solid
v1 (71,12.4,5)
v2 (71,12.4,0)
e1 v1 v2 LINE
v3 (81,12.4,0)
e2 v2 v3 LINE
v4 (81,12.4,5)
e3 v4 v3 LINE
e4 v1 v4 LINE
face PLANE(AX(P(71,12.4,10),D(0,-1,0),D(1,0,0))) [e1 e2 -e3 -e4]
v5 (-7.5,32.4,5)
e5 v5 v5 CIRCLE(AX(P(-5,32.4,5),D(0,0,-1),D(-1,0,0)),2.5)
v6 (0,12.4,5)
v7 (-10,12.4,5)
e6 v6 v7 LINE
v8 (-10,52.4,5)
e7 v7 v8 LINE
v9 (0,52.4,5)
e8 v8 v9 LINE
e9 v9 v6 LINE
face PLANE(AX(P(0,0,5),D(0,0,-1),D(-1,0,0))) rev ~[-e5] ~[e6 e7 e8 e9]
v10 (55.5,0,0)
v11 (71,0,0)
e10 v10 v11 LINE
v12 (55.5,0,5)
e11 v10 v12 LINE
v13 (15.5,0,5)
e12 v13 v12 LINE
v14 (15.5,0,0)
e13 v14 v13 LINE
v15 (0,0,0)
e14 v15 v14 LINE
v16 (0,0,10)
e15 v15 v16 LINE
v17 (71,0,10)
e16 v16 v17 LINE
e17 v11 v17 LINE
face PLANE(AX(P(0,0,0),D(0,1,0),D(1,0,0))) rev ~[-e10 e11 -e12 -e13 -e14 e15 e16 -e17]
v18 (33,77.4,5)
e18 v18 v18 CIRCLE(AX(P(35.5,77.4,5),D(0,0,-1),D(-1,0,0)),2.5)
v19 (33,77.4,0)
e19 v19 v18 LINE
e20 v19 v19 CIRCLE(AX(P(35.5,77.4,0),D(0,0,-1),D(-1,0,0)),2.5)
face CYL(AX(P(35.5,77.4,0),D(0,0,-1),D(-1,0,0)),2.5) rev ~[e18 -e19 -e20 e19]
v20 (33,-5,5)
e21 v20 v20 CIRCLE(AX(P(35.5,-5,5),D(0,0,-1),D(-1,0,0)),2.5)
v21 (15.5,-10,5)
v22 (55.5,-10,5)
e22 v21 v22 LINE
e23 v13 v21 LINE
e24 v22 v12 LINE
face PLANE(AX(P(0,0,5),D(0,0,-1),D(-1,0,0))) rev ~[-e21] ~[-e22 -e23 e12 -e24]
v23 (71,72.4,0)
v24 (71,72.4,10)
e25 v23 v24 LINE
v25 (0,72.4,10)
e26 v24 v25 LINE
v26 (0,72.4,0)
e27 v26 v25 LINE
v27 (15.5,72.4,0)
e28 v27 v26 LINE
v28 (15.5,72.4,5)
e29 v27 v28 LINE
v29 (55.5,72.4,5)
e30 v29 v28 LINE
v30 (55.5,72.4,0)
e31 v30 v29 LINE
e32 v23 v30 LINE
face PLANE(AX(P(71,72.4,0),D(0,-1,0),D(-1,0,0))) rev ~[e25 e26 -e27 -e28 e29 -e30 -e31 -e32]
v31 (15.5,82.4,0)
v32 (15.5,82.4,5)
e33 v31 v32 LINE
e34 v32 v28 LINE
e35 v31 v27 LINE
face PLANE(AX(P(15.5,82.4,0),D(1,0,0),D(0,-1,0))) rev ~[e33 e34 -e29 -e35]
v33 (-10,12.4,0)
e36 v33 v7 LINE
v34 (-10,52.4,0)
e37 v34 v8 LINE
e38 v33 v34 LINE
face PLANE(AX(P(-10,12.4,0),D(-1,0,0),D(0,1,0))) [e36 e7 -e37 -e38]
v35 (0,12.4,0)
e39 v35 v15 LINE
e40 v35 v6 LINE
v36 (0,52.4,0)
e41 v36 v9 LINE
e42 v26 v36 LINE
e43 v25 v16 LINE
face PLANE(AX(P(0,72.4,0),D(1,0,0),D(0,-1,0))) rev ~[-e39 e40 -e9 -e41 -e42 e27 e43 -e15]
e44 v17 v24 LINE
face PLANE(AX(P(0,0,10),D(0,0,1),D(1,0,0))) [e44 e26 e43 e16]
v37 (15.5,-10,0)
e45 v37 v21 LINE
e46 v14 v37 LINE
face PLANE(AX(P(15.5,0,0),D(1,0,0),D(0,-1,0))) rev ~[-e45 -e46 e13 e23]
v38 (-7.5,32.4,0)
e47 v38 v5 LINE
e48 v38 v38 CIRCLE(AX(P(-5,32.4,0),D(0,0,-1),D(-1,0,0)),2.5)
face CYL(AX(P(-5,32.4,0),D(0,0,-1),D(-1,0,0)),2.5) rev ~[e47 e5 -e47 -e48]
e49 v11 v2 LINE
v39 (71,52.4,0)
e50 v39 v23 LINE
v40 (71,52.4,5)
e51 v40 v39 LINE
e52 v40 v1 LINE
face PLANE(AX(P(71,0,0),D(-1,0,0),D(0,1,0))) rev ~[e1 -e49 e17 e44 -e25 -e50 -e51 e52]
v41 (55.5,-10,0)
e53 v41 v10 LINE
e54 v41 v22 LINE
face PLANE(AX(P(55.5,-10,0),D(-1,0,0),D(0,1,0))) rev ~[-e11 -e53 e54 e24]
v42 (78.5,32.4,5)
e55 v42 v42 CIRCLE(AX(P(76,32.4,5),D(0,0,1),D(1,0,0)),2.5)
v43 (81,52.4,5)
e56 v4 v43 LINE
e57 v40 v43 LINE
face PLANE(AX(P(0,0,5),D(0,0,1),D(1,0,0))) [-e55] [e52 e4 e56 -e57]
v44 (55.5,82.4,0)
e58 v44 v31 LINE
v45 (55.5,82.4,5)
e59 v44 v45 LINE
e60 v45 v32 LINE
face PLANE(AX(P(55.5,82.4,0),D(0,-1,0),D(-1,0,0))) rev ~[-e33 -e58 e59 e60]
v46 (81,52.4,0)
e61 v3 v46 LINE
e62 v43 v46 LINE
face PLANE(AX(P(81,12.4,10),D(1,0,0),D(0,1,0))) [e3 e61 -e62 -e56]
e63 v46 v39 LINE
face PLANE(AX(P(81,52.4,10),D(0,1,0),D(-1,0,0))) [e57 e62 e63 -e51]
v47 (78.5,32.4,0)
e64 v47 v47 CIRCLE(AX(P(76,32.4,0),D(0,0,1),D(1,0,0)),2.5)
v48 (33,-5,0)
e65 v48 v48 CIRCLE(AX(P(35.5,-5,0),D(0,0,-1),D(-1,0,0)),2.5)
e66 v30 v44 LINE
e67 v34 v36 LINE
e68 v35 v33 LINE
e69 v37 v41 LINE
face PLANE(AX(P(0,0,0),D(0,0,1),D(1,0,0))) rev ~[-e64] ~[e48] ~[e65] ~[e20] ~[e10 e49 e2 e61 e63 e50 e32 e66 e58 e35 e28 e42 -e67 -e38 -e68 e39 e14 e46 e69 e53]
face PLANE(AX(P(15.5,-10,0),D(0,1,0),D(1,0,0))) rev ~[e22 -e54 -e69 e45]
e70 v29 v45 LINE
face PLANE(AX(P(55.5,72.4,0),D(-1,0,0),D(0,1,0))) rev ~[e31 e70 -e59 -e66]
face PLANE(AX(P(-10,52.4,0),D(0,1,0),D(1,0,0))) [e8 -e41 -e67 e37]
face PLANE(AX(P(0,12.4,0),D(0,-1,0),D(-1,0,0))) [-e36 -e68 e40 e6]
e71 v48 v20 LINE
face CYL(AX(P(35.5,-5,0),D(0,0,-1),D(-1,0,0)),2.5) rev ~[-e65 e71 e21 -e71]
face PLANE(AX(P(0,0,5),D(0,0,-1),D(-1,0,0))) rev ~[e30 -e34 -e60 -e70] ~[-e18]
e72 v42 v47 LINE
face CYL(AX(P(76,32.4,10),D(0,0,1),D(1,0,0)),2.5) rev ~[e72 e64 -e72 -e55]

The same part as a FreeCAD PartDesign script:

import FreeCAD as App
import Part
import Sketcher
from FreeCAD import Vector

doc = App.newDocument("Part")
params = doc.addObject("Spreadsheet::Sheet", "Params")
for row, (alias, value) in enumerate([
    ("sketch1_width", "71 mm"),
    ("sketch1_height", "72.4 mm"),
    ("pad1_length", "10 mm"),
    ("sketch2_diameter", "5 mm"),
    ("sketch2_width", "10 mm"),
    ("sketch2_height", "40 mm"),
    ("pad2_length", "10 mm"),
    ("sketch3_width", "10 mm"),
    ("sketch3_height", "40 mm"),
    ("pocket1_length", "5 mm"),
    ("sketch4_diameter", "5 mm"),
    ("sketch4_width", "10 mm"),
    ("sketch4_height", "40 mm"),
    ("pad3_length", "5 mm"),
    ("sketch5_diameter", "5 mm"),
    ("sketch5_width", "40 mm"),
    ("sketch5_height", "10 mm"),
    ("pad4_length", "5 mm"),
    ("sketch6_diameter", "5 mm"),
    ("sketch6_height", "10 mm"),
    ("sketch6_width", "40 mm"),
    ("pad5_length", "5 mm"),
], start=1):
    params.set(f"A{row}", alias)
    params.set(f"B{row}", "=" + value)
    params.setAlias(f"B{row}", alias)

body = doc.addObject("PartDesign::Body", "Body")

sketch1 = body.newObject("Sketcher::SketchObject", "Sketch")
sketch1.AttachmentSupport = (doc.getObject("XY_Plane"), [""])
sketch1.MapMode = "FlatFace"
sketch1.addGeometry(Part.LineSegment(Vector(0, 72, 0), Vector(0, 0, 0)), False)
sketch1.addGeometry(Part.LineSegment(Vector(0, 0, 0), Vector(71, 0, 0)), False)
sketch1.addGeometry(Part.LineSegment(Vector(71, 0, 0), Vector(71, 72, 0)), False)
sketch1.addGeometry(Part.LineSegment(Vector(71, 72, 0), Vector(0, 72, 0)), False)
sketch1.addConstraint(Sketcher.Constraint("Coincident", 0, 2, 1, 1))
sketch1.addConstraint(Sketcher.Constraint("Coincident", 1, 2, 2, 1))
sketch1.addConstraint(Sketcher.Constraint("Coincident", 2, 2, 3, 1))
sketch1.addConstraint(Sketcher.Constraint("Coincident", 3, 2, 0, 1))
sketch1.addConstraint(Sketcher.Constraint("Vertical", 0))
sketch1.addConstraint(Sketcher.Constraint("Horizontal", 1))
sketch1.addConstraint(Sketcher.Constraint("Vertical", 2))
sketch1.addConstraint(Sketcher.Constraint("Horizontal", 3))
sketch1.addConstraint(Sketcher.Constraint("Coincident", 0, 2, -1, 1))
sketch1.addConstraint(Sketcher.Constraint("DistanceX", 1, 1, 1, 2, 71.0))
sketch1.addConstraint(Sketcher.Constraint("DistanceY", 0, 2, 0, 1, 72.4))
sketch1.setExpression("Constraints[9]", "Params.sketch1_width")
sketch1.setExpression("Constraints[10]", "Params.sketch1_height")
pad1 = body.newObject("PartDesign::Pad", "Pad")
pad1.Profile = sketch1
pad1.setExpression("Length", "Params.pad1_length")

sketch2 = body.newObject("Sketcher::SketchObject", "Sketch001")
sketch2.AttachmentSupport = (doc.getObject("XY_Plane"), [""])
sketch2.MapMode = "FlatFace"
sketch2.AttachmentOffset = App.Placement(Vector(0, 0, 10), App.Rotation())
sketch2.addGeometry(Part.LineSegment(Vector(71, 52.4, 0), Vector(71, 12.4, 0)), False)
sketch2.addGeometry(Part.LineSegment(Vector(71, 12.4, 0), Vector(81, 12.4, 0)), False)
sketch2.addGeometry(Part.LineSegment(Vector(81, 12.4, 0), Vector(81, 52.4, 0)), False)
sketch2.addGeometry(Part.LineSegment(Vector(81, 52.4, 0), Vector(71, 52.4, 0)), False)
sketch2.addGeometry(Part.Circle(Vector(76, 32.4, 0), Vector(0, 0, 1), 2.5), False)
sketch2.addConstraint(Sketcher.Constraint("Coincident", 0, 2, 1, 1))
sketch2.addConstraint(Sketcher.Constraint("Coincident", 1, 2, 2, 1))
sketch2.addConstraint(Sketcher.Constraint("Coincident", 2, 2, 3, 1))
sketch2.addConstraint(Sketcher.Constraint("Coincident", 3, 2, 0, 1))
sketch2.addConstraint(Sketcher.Constraint("Vertical", 0))
sketch2.addConstraint(Sketcher.Constraint("Horizontal", 1))
sketch2.addConstraint(Sketcher.Constraint("Vertical", 2))
sketch2.addConstraint(Sketcher.Constraint("Horizontal", 3))
sketch2.addConstraint(Sketcher.Constraint("Diameter", 4, 5.0))
sketch2.addConstraint(Sketcher.Constraint("DistanceX", 1, 1, 1, 2, 10.0))
sketch2.addConstraint(Sketcher.Constraint("DistanceY", 0, 2, 0, 1, 40.0))
sketch2.addConstraint(Sketcher.Constraint("DistanceX", 0, 2, 4, 3, 5.0))
sketch2.addConstraint(Sketcher.Constraint("DistanceY", 0, 2, 4, 3, 20.0))
sketch2.addConstraint(Sketcher.Constraint("DistanceX", -1, 1, 4, 3, 76.0))
sketch2.addConstraint(Sketcher.Constraint("DistanceY", -1, 1, 4, 3, 32.4))
sketch2.setExpression("Constraints[8]", "Params.sketch2_diameter")
sketch2.setExpression("Constraints[9]", "Params.sketch2_width")
sketch2.setExpression("Constraints[10]", "Params.sketch2_height")
pad2 = body.newObject("PartDesign::Pad", "Pad001")
pad2.Profile = sketch2
pad2.setExpression("Length", "Params.pad2_length")
pad2.Reversed = True

sketch3 = body.newObject("Sketcher::SketchObject", "Sketch002")
sketch3.AttachmentSupport = (doc.getObject("XY_Plane"), [""])
sketch3.MapMode = "FlatFace"
sketch3.AttachmentOffset = App.Placement(Vector(0, 0, 10), App.Rotation())
sketch3.addGeometry(Part.LineSegment(Vector(81, 52, 0), Vector(71, 52, 0)), False)
sketch3.addGeometry(Part.LineSegment(Vector(71, 52, 0), Vector(71, 12, 0)), False)
sketch3.addGeometry(Part.LineSegment(Vector(71, 12, 0), Vector(81, 12, 0)), False)
sketch3.addGeometry(Part.LineSegment(Vector(81, 12, 0), Vector(81, 52, 0)), False)
sketch3.addConstraint(Sketcher.Constraint("Coincident", 0, 2, 1, 1))
sketch3.addConstraint(Sketcher.Constraint("Coincident", 1, 2, 2, 1))
sketch3.addConstraint(Sketcher.Constraint("Coincident", 2, 2, 3, 1))
sketch3.addConstraint(Sketcher.Constraint("Coincident", 3, 2, 0, 1))
sketch3.addConstraint(Sketcher.Constraint("Horizontal", 0))
sketch3.addConstraint(Sketcher.Constraint("Vertical", 1))
sketch3.addConstraint(Sketcher.Constraint("Horizontal", 2))
sketch3.addConstraint(Sketcher.Constraint("Vertical", 3))
sketch3.addConstraint(Sketcher.Constraint("DistanceX", 0, 2, 0, 1, 10.0))
sketch3.addConstraint(Sketcher.Constraint("DistanceY", 1, 2, 1, 1, 40.0))
sketch3.addConstraint(Sketcher.Constraint("DistanceX", -1, 1, 0, 2, 71.0))
sketch3.addConstraint(Sketcher.Constraint("DistanceY", -1, 1, 0, 2, 52.4))
sketch3.setExpression("Constraints[8]", "Params.sketch3_width")
sketch3.setExpression("Constraints[9]", "Params.sketch3_height")
pocket1 = body.newObject("PartDesign::Pocket", "Pocket")
pocket1.Profile = sketch3
pocket1.setExpression("Length", "Params.pocket1_length")

sketch4 = body.newObject("Sketcher::SketchObject", "Sketch003")
sketch4.AttachmentSupport = (doc.getObject("XY_Plane"), [""])
sketch4.MapMode = "FlatFace"
sketch4.addGeometry(Part.LineSegment(Vector(-10, 52.4, 0), Vector(0, 52.4, 0)), False)
sketch4.addGeometry(Part.LineSegment(Vector(0, 52.4, 0), Vector(0, 12.4, 0)), False)
sketch4.addGeometry(Part.LineSegment(Vector(0, 12.4, 0), Vector(-10, 12.4, 0)), False)
sketch4.addGeometry(Part.LineSegment(Vector(-10, 12.4, 0), Vector(-10, 52.4, 0)), False)
sketch4.addGeometry(Part.Circle(Vector(-5, 32.4, 0), Vector(0, 0, 1), 2.5), False)
sketch4.addConstraint(Sketcher.Constraint("Coincident", 0, 2, 1, 1))
sketch4.addConstraint(Sketcher.Constraint("Coincident", 1, 2, 2, 1))
sketch4.addConstraint(Sketcher.Constraint("Coincident", 2, 2, 3, 1))
sketch4.addConstraint(Sketcher.Constraint("Coincident", 3, 2, 0, 1))
sketch4.addConstraint(Sketcher.Constraint("Horizontal", 0))
sketch4.addConstraint(Sketcher.Constraint("Vertical", 1))
sketch4.addConstraint(Sketcher.Constraint("Horizontal", 2))
sketch4.addConstraint(Sketcher.Constraint("Vertical", 3))
sketch4.addConstraint(Sketcher.Constraint("PointOnObject", 0, 2, -2))
sketch4.addConstraint(Sketcher.Constraint("Diameter", 4, 5.0))
sketch4.addConstraint(Sketcher.Constraint("DistanceX", 0, 1, 0, 2, 10.0))
sketch4.addConstraint(Sketcher.Constraint("DistanceY", 1, 2, 1, 1, 40.0))
sketch4.addConstraint(Sketcher.Constraint("DistanceX", 4, 3, -1, 1, 5.0))
sketch4.addConstraint(Sketcher.Constraint("DistanceY", 4, 3, 0, 2, 20.0))
sketch4.addConstraint(Sketcher.Constraint("DistanceY", -1, 1, 4, 3, 32.4))
sketch4.setExpression("Constraints[9]", "Params.sketch4_diameter")
sketch4.setExpression("Constraints[10]", "Params.sketch4_width")
sketch4.setExpression("Constraints[11]", "Params.sketch4_height")
pad3 = body.newObject("PartDesign::Pad", "Pad002")
pad3.Profile = sketch4
pad3.setExpression("Length", "Params.pad3_length")

sketch5 = body.newObject("Sketcher::SketchObject", "Sketch004")
sketch5.AttachmentSupport = (doc.getObject("XY_Plane"), [""])
sketch5.MapMode = "FlatFace"
sketch5.addGeometry(Part.LineSegment(Vector(55.5, 82.4, 0), Vector(55.5, 72.4, 0)), False)
sketch5.addGeometry(Part.LineSegment(Vector(55.5, 72.4, 0), Vector(15.5, 72.4, 0)), False)
sketch5.addGeometry(Part.LineSegment(Vector(15.5, 72.4, 0), Vector(15.5, 82.4, 0)), False)
sketch5.addGeometry(Part.LineSegment(Vector(15.5, 82.4, 0), Vector(55.5, 82.4, 0)), False)
sketch5.addGeometry(Part.Circle(Vector(35.5, 77.4, 0), Vector(0, 0, 1), 2.5), False)
sketch5.addConstraint(Sketcher.Constraint("Coincident", 0, 2, 1, 1))
sketch5.addConstraint(Sketcher.Constraint("Coincident", 1, 2, 2, 1))
sketch5.addConstraint(Sketcher.Constraint("Coincident", 2, 2, 3, 1))
sketch5.addConstraint(Sketcher.Constraint("Coincident", 3, 2, 0, 1))
sketch5.addConstraint(Sketcher.Constraint("Vertical", 0))
sketch5.addConstraint(Sketcher.Constraint("Horizontal", 1))
sketch5.addConstraint(Sketcher.Constraint("Vertical", 2))
sketch5.addConstraint(Sketcher.Constraint("Horizontal", 3))
sketch5.addConstraint(Sketcher.Constraint("Diameter", 4, 5.0))
sketch5.addConstraint(Sketcher.Constraint("DistanceX", 1, 2, 1, 1, 40.0))
sketch5.addConstraint(Sketcher.Constraint("DistanceY", 0, 2, 0, 1, 10.0))
sketch5.addConstraint(Sketcher.Constraint("DistanceY", 0, 2, 4, 3, 5.0))
sketch5.addConstraint(Sketcher.Constraint("DistanceX", 4, 3, 0, 2, 20.0))
sketch5.addConstraint(Sketcher.Constraint("DistanceX", -1, 1, 4, 3, 35.5))
sketch5.addConstraint(Sketcher.Constraint("DistanceY", -1, 1, 4, 3, 77.4))
sketch5.setExpression("Constraints[8]", "Params.sketch5_diameter")
sketch5.setExpression("Constraints[9]", "Params.sketch5_width")
sketch5.setExpression("Constraints[10]", "Params.sketch5_height")
pad4 = body.newObject("PartDesign::Pad", "Pad003")
pad4.Profile = sketch5
pad4.setExpression("Length", "Params.pad4_length")

sketch6 = body.newObject("Sketcher::SketchObject", "Sketch005")
sketch6.AttachmentSupport = (doc.getObject("XY_Plane"), [""])
sketch6.MapMode = "FlatFace"
sketch6.addGeometry(Part.LineSegment(Vector(15.5, -10, 0), Vector(15.5, 0, 0)), False)
sketch6.addGeometry(Part.LineSegment(Vector(15.5, 0, 0), Vector(55.5, 0, 0)), False)
sketch6.addGeometry(Part.LineSegment(Vector(55.5, 0, 0), Vector(55.5, -10, 0)), False)
sketch6.addGeometry(Part.LineSegment(Vector(55.5, -10, 0), Vector(15.5, -10, 0)), False)
sketch6.addGeometry(Part.Circle(Vector(35.5, -5, 0), Vector(0, 0, 1), 2.5), False)
sketch6.addConstraint(Sketcher.Constraint("Coincident", 0, 2, 1, 1))
sketch6.addConstraint(Sketcher.Constraint("Coincident", 1, 2, 2, 1))
sketch6.addConstraint(Sketcher.Constraint("Coincident", 2, 2, 3, 1))
sketch6.addConstraint(Sketcher.Constraint("Coincident", 3, 2, 0, 1))
sketch6.addConstraint(Sketcher.Constraint("Vertical", 0))
sketch6.addConstraint(Sketcher.Constraint("Horizontal", 1))
sketch6.addConstraint(Sketcher.Constraint("Vertical", 2))
sketch6.addConstraint(Sketcher.Constraint("Horizontal", 3))
sketch6.addConstraint(Sketcher.Constraint("PointOnObject", 0, 2, -1))
sketch6.addConstraint(Sketcher.Constraint("Diameter", 4, 5.0))
sketch6.addConstraint(Sketcher.Constraint("DistanceY", 0, 1, 0, 2, 10.0))
sketch6.addConstraint(Sketcher.Constraint("DistanceY", 4, 3, -1, 1, 5.0))
sketch6.addConstraint(Sketcher.Constraint("DistanceX", 1, 1, 1, 2, 40.0))
sketch6.addConstraint(Sketcher.Constraint("DistanceX", 0, 2, 4, 3, 20.0))
sketch6.addConstraint(Sketcher.Constraint("DistanceX", -1, 1, 4, 3, 35.5))
sketch6.setExpression("Constraints[9]", "Params.sketch6_diameter")
sketch6.setExpression("Constraints[10]", "Params.sketch6_height")
sketch6.setExpression("Constraints[12]", "Params.sketch6_width")
pad5 = body.newObject("PartDesign::Pad", "Pad004")
pad5.Profile = sketch6
pad5.setExpression("Length", "Params.pad5_length")

doc.recompute()
